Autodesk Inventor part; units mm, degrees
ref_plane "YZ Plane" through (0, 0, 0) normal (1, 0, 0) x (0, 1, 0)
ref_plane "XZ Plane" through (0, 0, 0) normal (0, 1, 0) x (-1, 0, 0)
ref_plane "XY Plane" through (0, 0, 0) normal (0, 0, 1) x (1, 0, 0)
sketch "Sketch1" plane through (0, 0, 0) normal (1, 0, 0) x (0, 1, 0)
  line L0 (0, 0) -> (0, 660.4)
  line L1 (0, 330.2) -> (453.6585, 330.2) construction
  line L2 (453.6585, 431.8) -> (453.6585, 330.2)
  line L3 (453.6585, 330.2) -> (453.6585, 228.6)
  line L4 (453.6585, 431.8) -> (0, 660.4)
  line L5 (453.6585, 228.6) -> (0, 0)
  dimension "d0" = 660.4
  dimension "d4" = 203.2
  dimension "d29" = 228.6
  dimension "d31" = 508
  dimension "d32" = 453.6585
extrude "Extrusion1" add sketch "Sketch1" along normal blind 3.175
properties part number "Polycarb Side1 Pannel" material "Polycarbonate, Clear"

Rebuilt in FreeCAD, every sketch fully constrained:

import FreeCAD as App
import Part
import Sketcher
Q = App.Units.Quantity


def add_polygon(sketch, points):
    """Adds a closed chain of lines whose ends are joined by coincident constraints."""
    first, n = sketch.GeometryCount, len(points)
    for a, b in zip(points, points[1:] + points[:1]):
        sketch.addGeometry(Part.LineSegment(App.Vector(*a, 0), App.Vector(*b, 0)), False)
    for i in range(n):
        sketch.addConstraint(Sketcher.Constraint("Coincident", first + i, 2, first + (i + 1) % n, 1))

doc = App.newDocument("Part")
body = doc.addObject("PartDesign::Body", "Body")

sketch1 = doc.addObject("Sketcher::SketchObject", "Sketch")
body.addObject(sketch1)
sketch1.AttachmentSupport = (doc.YZ_Plane, [""])
sketch1.MapMode = "FlatFace"
add_polygon(sketch1, [(0, 660.4), (0, 0), (453.6585, 228.6), (453.6585, 431.8)])
sketch1.addConstraint(Sketcher.Constraint("Vertical", 0))
sketch1.addConstraint(Sketcher.Constraint("Vertical", 2))
sketch1.addConstraint(Sketcher.Constraint("Coincident", 0, 2, -1, 1))
sketch1.addConstraint(Sketcher.Constraint("Equal", 1, 3))
sketch1.addConstraint(Sketcher.Constraint("DistanceY", 0, 2, 0, 1, Q("26 in")))
sketch1.addConstraint(Sketcher.Constraint("DistanceY", 2, 1, 2, 2, Q("8 in")))
sketch1.addConstraint(Sketcher.Constraint("Distance", 1, Q("20 in")))
pad1 = doc.addObject("PartDesign::Pad", "Pad")
body.addObject(pad1)
pad1.Profile = sketch1
pad1.Length = Q("0.125 in")

doc.recompute()
